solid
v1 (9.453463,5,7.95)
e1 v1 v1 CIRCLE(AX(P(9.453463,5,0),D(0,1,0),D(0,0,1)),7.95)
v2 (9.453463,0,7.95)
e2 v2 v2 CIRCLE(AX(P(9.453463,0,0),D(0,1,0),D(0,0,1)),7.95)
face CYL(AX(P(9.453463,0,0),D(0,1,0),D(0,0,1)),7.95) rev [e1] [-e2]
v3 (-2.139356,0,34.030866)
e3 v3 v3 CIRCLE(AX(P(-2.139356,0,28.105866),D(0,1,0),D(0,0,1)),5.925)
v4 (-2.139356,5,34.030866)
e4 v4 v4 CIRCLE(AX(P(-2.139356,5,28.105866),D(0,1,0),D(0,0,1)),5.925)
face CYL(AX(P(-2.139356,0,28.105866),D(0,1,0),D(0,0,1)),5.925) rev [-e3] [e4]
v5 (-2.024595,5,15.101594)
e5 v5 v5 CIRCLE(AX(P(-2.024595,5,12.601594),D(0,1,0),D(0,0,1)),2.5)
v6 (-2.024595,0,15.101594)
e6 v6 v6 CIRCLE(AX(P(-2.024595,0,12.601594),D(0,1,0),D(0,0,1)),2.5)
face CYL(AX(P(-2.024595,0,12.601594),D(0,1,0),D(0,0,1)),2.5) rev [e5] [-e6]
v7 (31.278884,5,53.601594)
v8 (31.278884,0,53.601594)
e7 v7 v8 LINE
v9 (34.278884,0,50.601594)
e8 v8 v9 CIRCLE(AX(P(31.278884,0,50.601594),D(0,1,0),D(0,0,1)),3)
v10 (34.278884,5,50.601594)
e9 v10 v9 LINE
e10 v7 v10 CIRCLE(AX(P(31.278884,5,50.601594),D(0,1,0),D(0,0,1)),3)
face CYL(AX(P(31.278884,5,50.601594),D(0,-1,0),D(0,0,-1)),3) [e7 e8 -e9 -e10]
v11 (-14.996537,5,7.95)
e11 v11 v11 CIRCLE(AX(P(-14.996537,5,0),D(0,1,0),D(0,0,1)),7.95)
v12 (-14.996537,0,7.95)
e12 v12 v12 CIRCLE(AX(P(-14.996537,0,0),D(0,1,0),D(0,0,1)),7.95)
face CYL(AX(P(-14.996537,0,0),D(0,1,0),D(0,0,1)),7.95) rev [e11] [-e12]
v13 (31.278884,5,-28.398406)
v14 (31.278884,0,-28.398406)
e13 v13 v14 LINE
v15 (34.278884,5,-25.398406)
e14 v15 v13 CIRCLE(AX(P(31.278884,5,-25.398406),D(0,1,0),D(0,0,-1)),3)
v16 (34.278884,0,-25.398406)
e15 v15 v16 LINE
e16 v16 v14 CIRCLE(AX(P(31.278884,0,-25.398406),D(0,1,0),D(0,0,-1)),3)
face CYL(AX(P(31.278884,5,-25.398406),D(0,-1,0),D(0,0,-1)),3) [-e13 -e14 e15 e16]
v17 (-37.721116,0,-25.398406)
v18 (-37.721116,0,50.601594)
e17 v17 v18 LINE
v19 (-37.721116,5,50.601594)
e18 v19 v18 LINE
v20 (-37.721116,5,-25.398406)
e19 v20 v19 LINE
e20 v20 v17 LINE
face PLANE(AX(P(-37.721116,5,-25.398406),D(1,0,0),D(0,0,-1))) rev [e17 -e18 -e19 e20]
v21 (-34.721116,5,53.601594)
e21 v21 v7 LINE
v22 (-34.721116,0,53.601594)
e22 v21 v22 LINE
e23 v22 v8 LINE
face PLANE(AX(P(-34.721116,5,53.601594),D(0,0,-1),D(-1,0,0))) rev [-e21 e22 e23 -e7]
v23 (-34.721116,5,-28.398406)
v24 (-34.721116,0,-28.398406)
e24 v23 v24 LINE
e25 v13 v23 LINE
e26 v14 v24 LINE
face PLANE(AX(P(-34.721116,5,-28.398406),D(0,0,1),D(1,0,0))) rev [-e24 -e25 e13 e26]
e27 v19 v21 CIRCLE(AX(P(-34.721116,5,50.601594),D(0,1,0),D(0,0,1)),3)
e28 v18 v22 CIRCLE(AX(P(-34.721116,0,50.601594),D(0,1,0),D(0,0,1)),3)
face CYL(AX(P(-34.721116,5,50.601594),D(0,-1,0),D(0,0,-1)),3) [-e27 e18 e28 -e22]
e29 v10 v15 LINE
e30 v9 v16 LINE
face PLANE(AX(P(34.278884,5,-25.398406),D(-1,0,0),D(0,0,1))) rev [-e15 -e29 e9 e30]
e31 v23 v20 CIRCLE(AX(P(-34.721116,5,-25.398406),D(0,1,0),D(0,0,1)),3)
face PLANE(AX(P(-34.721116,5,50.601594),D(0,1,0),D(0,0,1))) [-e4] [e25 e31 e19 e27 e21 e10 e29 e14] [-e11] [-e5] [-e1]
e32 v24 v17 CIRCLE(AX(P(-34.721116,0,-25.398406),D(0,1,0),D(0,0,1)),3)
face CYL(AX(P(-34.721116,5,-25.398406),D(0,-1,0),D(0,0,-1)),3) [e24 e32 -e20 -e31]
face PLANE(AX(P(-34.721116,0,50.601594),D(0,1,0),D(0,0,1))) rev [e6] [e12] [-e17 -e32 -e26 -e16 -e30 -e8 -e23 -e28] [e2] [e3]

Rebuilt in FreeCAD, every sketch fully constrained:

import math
import FreeCAD as App
import Part
import Sketcher

V = App.Vector
Q = App.Units.Quantity

doc = App.newDocument("Part")
body = doc.addObject("PartDesign::Body", "Body")

sketch1 = doc.addObject("Sketcher::SketchObject", "Sketch")
body.addObject(sketch1)
sketch1.AttachmentSupport = (doc.XZ_Plane, [""])
sketch1.MapMode = "FlatFace"
sketch1.addGeometry([
    Part.LineSegment(V(31.278884, -28.398406, 0), V(-34.721116, -28.398406, 0)),
    Part.ArcOfCircle(Part.Circle(V(-34.721116, -25.398406, 0), V(0, 0, 1), 3), math.radians(-180), math.radians(-90)),
    Part.LineSegment(V(-37.721116, -25.398406, 0), V(-37.721116, 50.601594, 0)),
    Part.ArcOfCircle(Part.Circle(V(-34.721116, 50.601594, 0), V(0, 0, 1), 3), math.radians(90), math.radians(180)),
    Part.LineSegment(V(-34.721116, 53.601594, 0), V(31.278884, 53.601594, 0)),
    Part.ArcOfCircle(Part.Circle(V(31.278884, 50.601594, 0), V(0, 0, 1), 3), math.radians(0), math.radians(90)),
    Part.LineSegment(V(34.278884, 50.601594, 0), V(34.278884, -25.398406, 0)),
    Part.ArcOfCircle(Part.Circle(V(31.278884, -25.398406, 0), V(0, 0, 1), 3), math.radians(-90), math.radians(0)),
], False)
sketch1.addConstraint([
    Sketcher.Constraint("Tangent", 0, 2, 1, 2),
    Sketcher.Constraint("Tangent", 1, 1, 2, 1),
    Sketcher.Constraint("Tangent", 2, 2, 3, 2),
    Sketcher.Constraint("Tangent", 3, 1, 4, 1),
    Sketcher.Constraint("Tangent", 4, 2, 5, 2),
    Sketcher.Constraint("Tangent", 5, 1, 6, 1),
    Sketcher.Constraint("Tangent", 6, 2, 7, 2),
    Sketcher.Constraint("Tangent", 7, 1, 0, 1),
    Sketcher.Constraint("Horizontal", 0),
    Sketcher.Constraint("Vertical", 2),
    Sketcher.Constraint("Horizontal", 4),
    Sketcher.Constraint("Vertical", 6),
    Sketcher.Constraint("Equal", 1, 3),
    Sketcher.Constraint("Equal", 3, 5),
    Sketcher.Constraint("Equal", 5, 7),
    Sketcher.Constraint("Radius", 1, Q("3 mm")),
    Sketcher.Constraint("DistanceX", 0, 2, 0, 1, Q("66 mm")),
    Sketcher.Constraint("DistanceY", 2, 1, 2, 2, Q("76 mm")),
    Sketcher.Constraint("DistanceX", 1, 3, -1, 1, Q("34.721116 mm")),
    Sketcher.Constraint("DistanceY", 1, 3, -1, 1, Q("25.398406 mm")),
])
pad1 = doc.addObject("PartDesign::Pad", "Pad")
body.addObject(pad1)
pad1.Profile = sketch1
pad1.Length = 5
pad1.Reversed = True

sketch2 = doc.addObject("Sketcher::SketchObject", "Sketch001")
body.addObject(sketch2)
sketch2.AttachmentSupport = (doc.XZ_Plane, [""])
sketch2.MapMode = "FlatFace"
sketch2.AttachmentOffset = App.Placement(V(0, 0, -5), App.Rotation())
sketch2.addGeometry([
    Part.Circle(V(-14.996537, 0, 0), V(0, 0, 1), 7.95),
    Part.Circle(V(9.453463, 0, 0), V(0, 0, 1), 7.95),
], False)
sketch2.addConstraint([
    Sketcher.Constraint("Equal", 0, 1),
    Sketcher.Constraint("PointOnObject", 0, 3, -1),
    Sketcher.Constraint("PointOnObject", 1, 3, -1),
    Sketcher.Constraint("Diameter", 0, Q("15.9 mm")),
    Sketcher.Constraint("DistanceX", 0, 3, 1, 3, Q("24.45 mm")),
    Sketcher.Constraint("DistanceX", 0, 3, -1, 1, Q("14.996537 mm")),
])
pocket1 = doc.addObject("PartDesign::Pocket", "Pocket")
body.addObject(pocket1)
pocket1.Profile = sketch2
pocket1.Length = 5
pocket1.Reversed = True

sketch3 = doc.addObject("Sketcher::SketchObject", "Sketch002")
body.addObject(sketch3)
sketch3.AttachmentSupport = (doc.XZ_Plane, [""])
sketch3.MapMode = "FlatFace"
sketch3.AttachmentOffset = App.Placement(V(0, 0, -5), App.Rotation())
sketch3.addGeometry([
    Part.Circle(V(-2.024595, 12.601594, 0), V(0, 0, 1), 2.5),
    Part.Circle(V(-2.139356, 28.105866, 0), V(0, 0, 1), 5.925),
], False)
sketch3.addConstraint([
    Sketcher.Constraint("Diameter", 0, Q("5 mm")),
    Sketcher.Constraint("Diameter", 1, Q("11.85 mm")),
    Sketcher.Constraint("DistanceX", 1, 3, 0, 3, Q("0.114762 mm")),
    Sketcher.Constraint("DistanceX", 0, 3, -1, 1, Q("2.024595 mm")),
    Sketcher.Constraint("DistanceY", -1, 1, 0, 3, Q("12.601594 mm")),
    Sketcher.Constraint("DistanceY", -1, 1, 1, 3, Q("28.105866 mm")),
])
pocket2 = doc.addObject("PartDesign::Pocket", "Pocket001")
body.addObject(pocket2)
pocket2.Profile = sketch3
pocket2.Length = 5
pocket2.Reversed = True

doc.recompute()
